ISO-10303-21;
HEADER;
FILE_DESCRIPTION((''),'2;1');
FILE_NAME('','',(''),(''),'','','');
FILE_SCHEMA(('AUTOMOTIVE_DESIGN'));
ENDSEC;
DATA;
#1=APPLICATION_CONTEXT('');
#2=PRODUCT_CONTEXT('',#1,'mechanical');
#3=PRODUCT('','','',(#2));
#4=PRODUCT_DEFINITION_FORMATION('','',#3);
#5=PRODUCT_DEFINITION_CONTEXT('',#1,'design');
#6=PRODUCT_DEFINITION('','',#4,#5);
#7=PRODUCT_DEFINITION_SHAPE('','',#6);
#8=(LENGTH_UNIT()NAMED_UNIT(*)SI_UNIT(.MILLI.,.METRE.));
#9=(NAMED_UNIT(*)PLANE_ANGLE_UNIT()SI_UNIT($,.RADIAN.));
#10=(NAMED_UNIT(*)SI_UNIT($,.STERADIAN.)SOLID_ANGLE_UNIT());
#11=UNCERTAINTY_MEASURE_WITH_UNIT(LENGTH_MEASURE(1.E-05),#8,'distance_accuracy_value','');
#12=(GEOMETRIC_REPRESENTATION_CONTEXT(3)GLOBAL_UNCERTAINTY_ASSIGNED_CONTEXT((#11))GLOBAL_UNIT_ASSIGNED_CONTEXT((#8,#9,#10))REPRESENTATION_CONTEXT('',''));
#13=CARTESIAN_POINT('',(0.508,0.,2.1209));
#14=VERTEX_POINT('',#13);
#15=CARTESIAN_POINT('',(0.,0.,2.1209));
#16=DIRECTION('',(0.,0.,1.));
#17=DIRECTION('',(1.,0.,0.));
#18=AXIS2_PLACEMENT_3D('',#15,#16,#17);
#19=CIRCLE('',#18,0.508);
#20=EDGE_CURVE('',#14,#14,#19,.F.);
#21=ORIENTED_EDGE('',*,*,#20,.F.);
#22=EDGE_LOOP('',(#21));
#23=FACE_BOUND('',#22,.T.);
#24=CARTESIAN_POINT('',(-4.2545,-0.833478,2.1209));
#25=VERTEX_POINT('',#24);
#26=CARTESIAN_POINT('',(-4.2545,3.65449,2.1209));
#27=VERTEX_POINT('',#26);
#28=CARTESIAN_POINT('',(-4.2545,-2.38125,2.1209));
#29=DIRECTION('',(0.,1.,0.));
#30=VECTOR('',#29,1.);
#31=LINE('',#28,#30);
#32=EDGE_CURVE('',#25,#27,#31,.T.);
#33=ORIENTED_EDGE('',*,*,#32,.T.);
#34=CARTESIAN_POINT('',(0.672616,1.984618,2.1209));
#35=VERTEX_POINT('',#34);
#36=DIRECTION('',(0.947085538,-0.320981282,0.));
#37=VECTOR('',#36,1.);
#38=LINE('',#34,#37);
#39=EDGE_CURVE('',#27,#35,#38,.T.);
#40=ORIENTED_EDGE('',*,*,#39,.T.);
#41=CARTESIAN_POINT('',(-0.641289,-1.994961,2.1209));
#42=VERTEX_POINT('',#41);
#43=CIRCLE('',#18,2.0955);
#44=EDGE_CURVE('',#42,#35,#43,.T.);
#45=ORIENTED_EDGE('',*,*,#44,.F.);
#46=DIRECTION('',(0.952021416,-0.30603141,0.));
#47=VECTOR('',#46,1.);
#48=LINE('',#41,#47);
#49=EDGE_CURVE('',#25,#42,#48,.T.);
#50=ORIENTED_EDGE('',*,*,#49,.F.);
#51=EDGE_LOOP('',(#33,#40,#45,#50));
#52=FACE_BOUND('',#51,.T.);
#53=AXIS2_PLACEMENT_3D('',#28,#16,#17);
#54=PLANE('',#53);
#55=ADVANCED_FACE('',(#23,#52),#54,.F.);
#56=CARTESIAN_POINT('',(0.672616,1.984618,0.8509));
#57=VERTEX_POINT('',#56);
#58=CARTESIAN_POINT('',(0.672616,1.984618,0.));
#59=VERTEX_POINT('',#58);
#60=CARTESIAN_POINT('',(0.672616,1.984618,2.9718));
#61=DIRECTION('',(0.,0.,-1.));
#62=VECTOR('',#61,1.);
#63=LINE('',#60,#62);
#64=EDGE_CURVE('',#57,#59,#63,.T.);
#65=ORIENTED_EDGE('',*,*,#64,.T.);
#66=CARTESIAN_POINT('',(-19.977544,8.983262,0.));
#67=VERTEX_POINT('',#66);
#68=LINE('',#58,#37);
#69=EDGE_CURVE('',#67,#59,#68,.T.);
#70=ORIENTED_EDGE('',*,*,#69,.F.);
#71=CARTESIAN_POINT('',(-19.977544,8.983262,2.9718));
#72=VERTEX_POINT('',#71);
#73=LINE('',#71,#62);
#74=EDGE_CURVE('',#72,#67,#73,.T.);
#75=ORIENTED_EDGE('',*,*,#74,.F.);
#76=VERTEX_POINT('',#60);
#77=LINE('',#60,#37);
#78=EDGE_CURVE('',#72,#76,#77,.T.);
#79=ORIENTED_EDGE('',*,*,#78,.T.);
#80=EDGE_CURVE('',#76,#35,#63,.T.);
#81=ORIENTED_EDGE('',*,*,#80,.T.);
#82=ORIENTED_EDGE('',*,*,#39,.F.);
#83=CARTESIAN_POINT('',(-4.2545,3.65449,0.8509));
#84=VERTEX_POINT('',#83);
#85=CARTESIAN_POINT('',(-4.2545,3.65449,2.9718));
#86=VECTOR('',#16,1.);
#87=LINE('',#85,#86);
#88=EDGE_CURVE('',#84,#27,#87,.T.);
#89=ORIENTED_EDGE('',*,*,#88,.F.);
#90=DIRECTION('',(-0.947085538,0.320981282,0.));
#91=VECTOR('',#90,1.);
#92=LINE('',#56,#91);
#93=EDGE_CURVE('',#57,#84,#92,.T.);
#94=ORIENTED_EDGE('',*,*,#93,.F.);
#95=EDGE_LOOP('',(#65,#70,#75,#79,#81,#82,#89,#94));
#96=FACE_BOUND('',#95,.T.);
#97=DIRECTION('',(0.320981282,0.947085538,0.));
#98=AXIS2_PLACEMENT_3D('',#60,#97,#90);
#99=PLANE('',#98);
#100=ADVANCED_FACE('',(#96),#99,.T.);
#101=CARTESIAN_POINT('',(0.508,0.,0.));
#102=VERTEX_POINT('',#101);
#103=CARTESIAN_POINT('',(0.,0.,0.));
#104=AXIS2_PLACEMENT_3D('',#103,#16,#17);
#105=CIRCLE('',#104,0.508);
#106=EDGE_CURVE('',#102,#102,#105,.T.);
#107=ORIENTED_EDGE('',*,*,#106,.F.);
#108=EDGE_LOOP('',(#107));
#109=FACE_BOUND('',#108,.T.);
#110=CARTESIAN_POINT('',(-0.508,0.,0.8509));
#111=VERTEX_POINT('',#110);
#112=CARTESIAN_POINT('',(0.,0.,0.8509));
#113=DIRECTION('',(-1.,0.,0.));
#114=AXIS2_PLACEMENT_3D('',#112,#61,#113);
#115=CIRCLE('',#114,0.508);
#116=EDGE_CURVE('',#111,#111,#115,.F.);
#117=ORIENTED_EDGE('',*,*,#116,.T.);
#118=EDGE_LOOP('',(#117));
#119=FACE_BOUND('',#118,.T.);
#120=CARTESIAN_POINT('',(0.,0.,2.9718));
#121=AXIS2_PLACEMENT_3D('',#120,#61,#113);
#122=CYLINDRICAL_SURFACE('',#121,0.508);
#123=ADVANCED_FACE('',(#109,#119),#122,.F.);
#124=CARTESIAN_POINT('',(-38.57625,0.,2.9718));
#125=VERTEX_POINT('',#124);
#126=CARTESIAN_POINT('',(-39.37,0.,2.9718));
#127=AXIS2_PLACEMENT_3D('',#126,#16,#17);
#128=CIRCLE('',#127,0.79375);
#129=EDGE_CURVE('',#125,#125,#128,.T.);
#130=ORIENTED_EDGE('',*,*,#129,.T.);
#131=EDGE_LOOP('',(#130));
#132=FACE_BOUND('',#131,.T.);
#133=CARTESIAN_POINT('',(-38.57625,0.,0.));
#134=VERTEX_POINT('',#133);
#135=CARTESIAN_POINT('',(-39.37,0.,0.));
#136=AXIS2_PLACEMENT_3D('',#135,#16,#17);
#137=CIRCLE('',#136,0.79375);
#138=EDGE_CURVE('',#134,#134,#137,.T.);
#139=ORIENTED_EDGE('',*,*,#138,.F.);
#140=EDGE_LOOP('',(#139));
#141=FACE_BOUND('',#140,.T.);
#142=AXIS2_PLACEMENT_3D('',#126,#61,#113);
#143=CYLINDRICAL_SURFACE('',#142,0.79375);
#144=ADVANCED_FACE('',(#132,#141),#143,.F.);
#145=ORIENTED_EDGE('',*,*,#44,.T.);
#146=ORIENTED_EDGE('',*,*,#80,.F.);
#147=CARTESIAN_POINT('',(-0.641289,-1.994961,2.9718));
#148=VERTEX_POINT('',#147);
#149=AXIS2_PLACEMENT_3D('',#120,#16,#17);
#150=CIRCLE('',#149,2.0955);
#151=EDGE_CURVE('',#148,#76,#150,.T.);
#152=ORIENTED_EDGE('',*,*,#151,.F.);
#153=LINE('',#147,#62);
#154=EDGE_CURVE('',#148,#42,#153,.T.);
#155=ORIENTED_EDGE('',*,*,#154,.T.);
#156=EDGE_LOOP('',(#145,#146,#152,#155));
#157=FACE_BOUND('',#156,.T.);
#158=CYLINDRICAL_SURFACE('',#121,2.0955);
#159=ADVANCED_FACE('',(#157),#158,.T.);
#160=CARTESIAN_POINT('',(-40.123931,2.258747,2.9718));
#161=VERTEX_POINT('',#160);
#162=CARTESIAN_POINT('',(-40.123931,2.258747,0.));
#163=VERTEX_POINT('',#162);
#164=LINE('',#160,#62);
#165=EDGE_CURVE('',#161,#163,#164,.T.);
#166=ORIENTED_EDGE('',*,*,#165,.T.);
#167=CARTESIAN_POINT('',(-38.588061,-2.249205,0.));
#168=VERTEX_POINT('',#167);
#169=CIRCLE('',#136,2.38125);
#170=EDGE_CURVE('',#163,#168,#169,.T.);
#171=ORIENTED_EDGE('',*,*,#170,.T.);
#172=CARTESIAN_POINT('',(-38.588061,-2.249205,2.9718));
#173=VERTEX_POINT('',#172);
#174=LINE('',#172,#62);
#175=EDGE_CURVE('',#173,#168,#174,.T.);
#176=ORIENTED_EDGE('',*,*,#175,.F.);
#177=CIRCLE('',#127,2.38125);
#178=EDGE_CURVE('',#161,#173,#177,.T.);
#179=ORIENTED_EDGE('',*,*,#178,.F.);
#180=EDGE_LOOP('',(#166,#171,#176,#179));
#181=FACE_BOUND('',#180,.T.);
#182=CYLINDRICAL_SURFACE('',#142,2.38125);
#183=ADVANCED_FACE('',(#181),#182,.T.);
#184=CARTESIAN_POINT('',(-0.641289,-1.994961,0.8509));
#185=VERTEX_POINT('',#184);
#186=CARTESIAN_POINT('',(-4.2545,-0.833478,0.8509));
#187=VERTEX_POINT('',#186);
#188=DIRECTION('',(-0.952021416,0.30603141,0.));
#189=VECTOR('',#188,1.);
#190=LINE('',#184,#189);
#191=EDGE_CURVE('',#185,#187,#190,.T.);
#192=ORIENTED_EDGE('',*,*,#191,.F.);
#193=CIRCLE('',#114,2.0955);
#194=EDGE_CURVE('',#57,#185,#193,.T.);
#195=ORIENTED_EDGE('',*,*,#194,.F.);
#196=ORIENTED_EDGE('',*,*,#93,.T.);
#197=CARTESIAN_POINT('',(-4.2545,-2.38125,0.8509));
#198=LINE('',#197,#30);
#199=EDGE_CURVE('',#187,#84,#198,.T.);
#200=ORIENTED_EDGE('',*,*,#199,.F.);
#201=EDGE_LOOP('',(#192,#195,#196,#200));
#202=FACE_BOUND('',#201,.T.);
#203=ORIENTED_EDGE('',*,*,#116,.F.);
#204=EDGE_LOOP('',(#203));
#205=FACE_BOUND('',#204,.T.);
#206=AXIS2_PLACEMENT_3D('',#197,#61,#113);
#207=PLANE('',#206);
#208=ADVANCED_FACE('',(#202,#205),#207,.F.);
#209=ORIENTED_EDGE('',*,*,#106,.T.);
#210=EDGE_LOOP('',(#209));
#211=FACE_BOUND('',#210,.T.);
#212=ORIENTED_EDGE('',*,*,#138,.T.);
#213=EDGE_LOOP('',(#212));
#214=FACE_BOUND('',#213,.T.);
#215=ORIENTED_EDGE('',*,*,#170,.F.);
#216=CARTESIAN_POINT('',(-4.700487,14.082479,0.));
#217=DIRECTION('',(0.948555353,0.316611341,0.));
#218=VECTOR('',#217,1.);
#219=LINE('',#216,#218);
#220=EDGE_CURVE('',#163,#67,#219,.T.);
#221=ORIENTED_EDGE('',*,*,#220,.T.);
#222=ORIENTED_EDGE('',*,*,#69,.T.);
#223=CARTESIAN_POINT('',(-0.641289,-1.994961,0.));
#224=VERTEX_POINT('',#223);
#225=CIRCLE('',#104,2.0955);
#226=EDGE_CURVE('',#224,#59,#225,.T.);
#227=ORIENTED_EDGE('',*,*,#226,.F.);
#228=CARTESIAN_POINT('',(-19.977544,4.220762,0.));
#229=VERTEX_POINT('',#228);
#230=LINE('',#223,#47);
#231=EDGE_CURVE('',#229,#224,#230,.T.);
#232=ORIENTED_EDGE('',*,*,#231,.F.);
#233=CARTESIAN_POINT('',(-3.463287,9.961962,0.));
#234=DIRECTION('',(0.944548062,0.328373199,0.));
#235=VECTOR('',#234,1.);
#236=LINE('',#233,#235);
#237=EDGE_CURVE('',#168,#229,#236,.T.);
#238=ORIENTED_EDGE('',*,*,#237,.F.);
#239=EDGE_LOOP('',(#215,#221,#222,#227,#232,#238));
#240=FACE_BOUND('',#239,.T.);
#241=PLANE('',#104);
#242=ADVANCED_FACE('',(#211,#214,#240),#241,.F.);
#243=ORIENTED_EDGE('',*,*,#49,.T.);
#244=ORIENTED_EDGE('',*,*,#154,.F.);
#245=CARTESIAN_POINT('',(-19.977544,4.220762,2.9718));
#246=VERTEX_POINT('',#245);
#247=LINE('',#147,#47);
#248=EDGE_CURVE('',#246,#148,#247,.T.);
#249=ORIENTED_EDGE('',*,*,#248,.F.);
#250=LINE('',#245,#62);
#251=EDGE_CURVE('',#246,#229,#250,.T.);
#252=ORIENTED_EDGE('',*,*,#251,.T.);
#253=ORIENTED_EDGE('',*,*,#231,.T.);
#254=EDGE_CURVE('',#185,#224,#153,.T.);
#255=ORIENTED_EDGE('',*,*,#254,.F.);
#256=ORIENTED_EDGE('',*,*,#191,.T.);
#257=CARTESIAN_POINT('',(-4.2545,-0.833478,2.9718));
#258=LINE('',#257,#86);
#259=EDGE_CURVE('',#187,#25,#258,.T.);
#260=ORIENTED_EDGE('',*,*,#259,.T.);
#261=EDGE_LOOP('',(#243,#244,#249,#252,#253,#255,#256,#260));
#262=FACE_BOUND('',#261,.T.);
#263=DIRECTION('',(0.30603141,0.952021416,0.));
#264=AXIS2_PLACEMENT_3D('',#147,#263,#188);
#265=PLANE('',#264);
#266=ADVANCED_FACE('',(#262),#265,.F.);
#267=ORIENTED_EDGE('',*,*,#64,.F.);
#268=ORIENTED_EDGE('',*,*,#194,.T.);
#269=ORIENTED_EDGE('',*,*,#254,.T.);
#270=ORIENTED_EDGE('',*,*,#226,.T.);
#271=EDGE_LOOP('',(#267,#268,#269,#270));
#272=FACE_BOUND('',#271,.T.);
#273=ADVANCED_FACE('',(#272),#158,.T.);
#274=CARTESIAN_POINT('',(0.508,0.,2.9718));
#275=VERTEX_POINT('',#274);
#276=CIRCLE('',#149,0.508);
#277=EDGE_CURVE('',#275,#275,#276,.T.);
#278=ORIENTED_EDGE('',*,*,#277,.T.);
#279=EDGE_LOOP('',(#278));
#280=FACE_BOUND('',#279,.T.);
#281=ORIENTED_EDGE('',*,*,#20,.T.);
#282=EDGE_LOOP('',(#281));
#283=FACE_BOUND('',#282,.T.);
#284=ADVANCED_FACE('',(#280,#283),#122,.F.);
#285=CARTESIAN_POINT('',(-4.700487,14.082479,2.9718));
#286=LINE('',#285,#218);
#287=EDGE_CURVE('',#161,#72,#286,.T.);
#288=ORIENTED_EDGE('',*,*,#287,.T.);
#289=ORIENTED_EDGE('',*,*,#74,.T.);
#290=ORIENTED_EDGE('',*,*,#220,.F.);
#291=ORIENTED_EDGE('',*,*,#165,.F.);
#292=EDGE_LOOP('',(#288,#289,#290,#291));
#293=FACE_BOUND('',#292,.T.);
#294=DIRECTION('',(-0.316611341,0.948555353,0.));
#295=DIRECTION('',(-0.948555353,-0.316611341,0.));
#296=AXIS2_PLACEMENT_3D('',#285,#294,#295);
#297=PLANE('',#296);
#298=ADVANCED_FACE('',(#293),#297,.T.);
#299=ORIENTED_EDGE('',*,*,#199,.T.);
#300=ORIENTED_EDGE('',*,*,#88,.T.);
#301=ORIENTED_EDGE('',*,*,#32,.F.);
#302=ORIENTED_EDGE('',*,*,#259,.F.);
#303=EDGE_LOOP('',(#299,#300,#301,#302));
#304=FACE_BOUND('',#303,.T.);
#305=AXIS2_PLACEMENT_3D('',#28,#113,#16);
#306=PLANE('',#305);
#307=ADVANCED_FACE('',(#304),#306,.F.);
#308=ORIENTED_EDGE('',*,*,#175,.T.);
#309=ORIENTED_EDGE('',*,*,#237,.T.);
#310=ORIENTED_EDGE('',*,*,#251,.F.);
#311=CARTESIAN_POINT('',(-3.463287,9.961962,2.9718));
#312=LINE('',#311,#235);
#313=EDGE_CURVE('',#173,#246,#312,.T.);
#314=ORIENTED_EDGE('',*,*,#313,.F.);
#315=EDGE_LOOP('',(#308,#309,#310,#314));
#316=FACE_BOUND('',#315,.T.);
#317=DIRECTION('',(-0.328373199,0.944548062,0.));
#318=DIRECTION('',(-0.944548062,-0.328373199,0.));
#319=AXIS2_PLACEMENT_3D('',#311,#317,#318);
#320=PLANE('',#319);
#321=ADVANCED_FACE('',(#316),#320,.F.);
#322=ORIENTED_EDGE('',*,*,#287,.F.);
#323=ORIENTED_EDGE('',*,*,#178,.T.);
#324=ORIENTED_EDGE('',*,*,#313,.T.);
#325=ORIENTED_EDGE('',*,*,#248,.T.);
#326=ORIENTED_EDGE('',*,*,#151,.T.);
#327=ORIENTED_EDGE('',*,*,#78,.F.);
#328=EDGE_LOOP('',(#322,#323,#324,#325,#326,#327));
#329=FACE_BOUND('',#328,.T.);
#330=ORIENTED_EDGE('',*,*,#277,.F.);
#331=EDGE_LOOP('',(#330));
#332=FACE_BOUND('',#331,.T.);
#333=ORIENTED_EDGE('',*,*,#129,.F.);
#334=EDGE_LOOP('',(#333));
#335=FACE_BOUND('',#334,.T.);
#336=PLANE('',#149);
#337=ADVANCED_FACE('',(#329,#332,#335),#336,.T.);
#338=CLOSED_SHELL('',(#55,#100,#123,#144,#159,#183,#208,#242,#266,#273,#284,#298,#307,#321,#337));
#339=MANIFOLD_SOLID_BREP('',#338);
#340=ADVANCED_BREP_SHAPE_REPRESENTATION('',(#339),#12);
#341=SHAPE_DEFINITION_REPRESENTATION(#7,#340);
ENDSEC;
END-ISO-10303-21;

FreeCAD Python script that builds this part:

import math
import FreeCAD as App
import Part
import Sketcher

V = App.Vector
Q = App.Units.Quantity

doc = App.newDocument("Part")
body = doc.addObject("PartDesign::Body", "Body")

# Sketch on XY plane
sketch1 = body.newObject("Sketcher::SketchObject", "Sketch")
sketch1.AttachmentSupport = (doc.getObject("XY_Plane"), [""])
sketch1.MapMode = "FlatFace"
sketch1.addGeometry([
    Part.LineSegment(V(-38.6, -2.2, 0), V(-20, 4.2, 0)),  # 0
    Part.LineSegment(V(-20, 4.2, 0), V(-0.6, -2, 0)),  # 1
    Part.ArcOfCircle(Part.Circle(V(0, 0, 0), V(0, 0, 1), 2.1), math.radians(-108), math.radians(71)),  # 2
    Part.LineSegment(V(0.7, 2, 0), V(-20, 9, 0)),  # 3
    Part.LineSegment(V(-20, 9, 0), V(-40.1, 2.3, 0)),  # 4
    Part.ArcOfCircle(Part.Circle(V(-39.4, 0, 0), V(0, 0, 1), 2.4), math.radians(108), math.radians(289)),  # 5
    Part.Circle(V(-39.4, 0, 0), V(0, 0, 1), 0.8),  # 6
], False)
sketch1.addConstraint([
    Sketcher.Constraint("Coincident", 0, 2, 1, 1),
    Sketcher.Constraint("Tangent", 1, 2, 2, 1),
    Sketcher.Constraint("Tangent", 2, 2, 3, 1),
    Sketcher.Constraint("Coincident", 3, 2, 4, 1),
    Sketcher.Constraint("Tangent", 4, 2, 5, 1),
    Sketcher.Constraint("Tangent", 5, 2, 0, 1),
    Sketcher.Constraint("Coincident", 2, 3, -1, 1),
    Sketcher.Constraint("Coincident", 6, 3, 5, 3),
    Sketcher.Constraint("PointOnObject", 5, 3, -1),
    Sketcher.Constraint("Vertical", 0, 2, 3, 2),
    Sketcher.Constraint("Diameter", 6, Q("0.0625 in")),
    Sketcher.Constraint("Radius", 5, Q("0.09375 in")),
    Sketcher.Constraint("Radius", 2, Q("0.0825 in")),
    Sketcher.Constraint("DistanceX", 5, 3, -1, 1, Q("1.55 in")),
    Sketcher.Constraint("DistanceY", 0, 2, 3, 2, Q("0.1875 in")),
    Sketcher.Constraint("Distance", 0, Q("19.703092 mm")),
    Sketcher.Constraint("Distance", 4, Q("21.239021 mm")),
])
pad1 = body.newObject("PartDesign::Pad", "Pad")
pad1.Profile = sketch1
pad1.Length = Q("0.117 in")

# Sketch on XZ plane
sketch2 = body.newObject("Sketcher::SketchObject", "Sketch001")
sketch2.AttachmentSupport = (doc.getObject("XZ_Plane"), [""])
sketch2.MapMode = "FlatFace"
sketch2.addGeometry([
    Part.LineSegment(V(-4.3, 0.9, 0), V(-4.3, 2.1, 0)),
    Part.LineSegment(V(-4.3, 2.1, 0), V(4.3, 2.1, 0)),
    Part.LineSegment(V(4.3, 2.1, 0), V(4.3, 0.9, 0)),
    Part.LineSegment(V(4.3, 0.9, 0), V(-4.3, 0.9, 0)),
], False)
sketch2.addConstraint([
    Sketcher.Constraint("Coincident", 0, 2, 1, 1),
    Sketcher.Constraint("Coincident", 1, 2, 2, 1),
    Sketcher.Constraint("Coincident", 2, 2, 3, 1),
    Sketcher.Constraint("Coincident", 3, 2, 0, 1),
    Sketcher.Constraint("Vertical", 0),
    Sketcher.Constraint("Horizontal", 1),
    Sketcher.Constraint("Vertical", 2),
    Sketcher.Constraint("Horizontal", 3),
    Sketcher.Constraint("DistanceY", 0, 1, 0, 2, Q("0.05 in")),
    Sketcher.Constraint("DistanceX", 0, 2, -1, 1, Q("0.1675 in")),
    Sketcher.Constraint("DistanceY", -1, 1, 0, 2, Q("0.0835 in")),
    Sketcher.Constraint("DistanceX", 1, 1, 1, 2, Q("8.560638 mm")),
])
pocket1 = body.newObject("PartDesign::Pocket", "Pocket")
pocket1.Profile = sketch2
pocket1.Type = "ThroughAll"
pocket1.Midplane = True

# Sketch on XY plane
sketch3 = body.newObject("Sketcher::SketchObject", "Sketch002")
sketch3.AttachmentSupport = (doc.getObject("XY_Plane"), [""])
sketch3.MapMode = "FlatFace"
sketch3.addGeometry(Part.Circle(V(0, 0, 0), V(0, 0, 1), 0.5), False)
sketch3.addConstraint([
    Sketcher.Constraint("Coincident", 0, 3, -1, 1),
    Sketcher.Constraint("Diameter", 0, Q("0.04 in")),
])
pocket2 = body.newObject("PartDesign::Pocket", "Pocket001")
pocket2.Profile = sketch3
pocket2.Type = "ThroughAll"
pocket2.Midplane = True

doc.recompute()
